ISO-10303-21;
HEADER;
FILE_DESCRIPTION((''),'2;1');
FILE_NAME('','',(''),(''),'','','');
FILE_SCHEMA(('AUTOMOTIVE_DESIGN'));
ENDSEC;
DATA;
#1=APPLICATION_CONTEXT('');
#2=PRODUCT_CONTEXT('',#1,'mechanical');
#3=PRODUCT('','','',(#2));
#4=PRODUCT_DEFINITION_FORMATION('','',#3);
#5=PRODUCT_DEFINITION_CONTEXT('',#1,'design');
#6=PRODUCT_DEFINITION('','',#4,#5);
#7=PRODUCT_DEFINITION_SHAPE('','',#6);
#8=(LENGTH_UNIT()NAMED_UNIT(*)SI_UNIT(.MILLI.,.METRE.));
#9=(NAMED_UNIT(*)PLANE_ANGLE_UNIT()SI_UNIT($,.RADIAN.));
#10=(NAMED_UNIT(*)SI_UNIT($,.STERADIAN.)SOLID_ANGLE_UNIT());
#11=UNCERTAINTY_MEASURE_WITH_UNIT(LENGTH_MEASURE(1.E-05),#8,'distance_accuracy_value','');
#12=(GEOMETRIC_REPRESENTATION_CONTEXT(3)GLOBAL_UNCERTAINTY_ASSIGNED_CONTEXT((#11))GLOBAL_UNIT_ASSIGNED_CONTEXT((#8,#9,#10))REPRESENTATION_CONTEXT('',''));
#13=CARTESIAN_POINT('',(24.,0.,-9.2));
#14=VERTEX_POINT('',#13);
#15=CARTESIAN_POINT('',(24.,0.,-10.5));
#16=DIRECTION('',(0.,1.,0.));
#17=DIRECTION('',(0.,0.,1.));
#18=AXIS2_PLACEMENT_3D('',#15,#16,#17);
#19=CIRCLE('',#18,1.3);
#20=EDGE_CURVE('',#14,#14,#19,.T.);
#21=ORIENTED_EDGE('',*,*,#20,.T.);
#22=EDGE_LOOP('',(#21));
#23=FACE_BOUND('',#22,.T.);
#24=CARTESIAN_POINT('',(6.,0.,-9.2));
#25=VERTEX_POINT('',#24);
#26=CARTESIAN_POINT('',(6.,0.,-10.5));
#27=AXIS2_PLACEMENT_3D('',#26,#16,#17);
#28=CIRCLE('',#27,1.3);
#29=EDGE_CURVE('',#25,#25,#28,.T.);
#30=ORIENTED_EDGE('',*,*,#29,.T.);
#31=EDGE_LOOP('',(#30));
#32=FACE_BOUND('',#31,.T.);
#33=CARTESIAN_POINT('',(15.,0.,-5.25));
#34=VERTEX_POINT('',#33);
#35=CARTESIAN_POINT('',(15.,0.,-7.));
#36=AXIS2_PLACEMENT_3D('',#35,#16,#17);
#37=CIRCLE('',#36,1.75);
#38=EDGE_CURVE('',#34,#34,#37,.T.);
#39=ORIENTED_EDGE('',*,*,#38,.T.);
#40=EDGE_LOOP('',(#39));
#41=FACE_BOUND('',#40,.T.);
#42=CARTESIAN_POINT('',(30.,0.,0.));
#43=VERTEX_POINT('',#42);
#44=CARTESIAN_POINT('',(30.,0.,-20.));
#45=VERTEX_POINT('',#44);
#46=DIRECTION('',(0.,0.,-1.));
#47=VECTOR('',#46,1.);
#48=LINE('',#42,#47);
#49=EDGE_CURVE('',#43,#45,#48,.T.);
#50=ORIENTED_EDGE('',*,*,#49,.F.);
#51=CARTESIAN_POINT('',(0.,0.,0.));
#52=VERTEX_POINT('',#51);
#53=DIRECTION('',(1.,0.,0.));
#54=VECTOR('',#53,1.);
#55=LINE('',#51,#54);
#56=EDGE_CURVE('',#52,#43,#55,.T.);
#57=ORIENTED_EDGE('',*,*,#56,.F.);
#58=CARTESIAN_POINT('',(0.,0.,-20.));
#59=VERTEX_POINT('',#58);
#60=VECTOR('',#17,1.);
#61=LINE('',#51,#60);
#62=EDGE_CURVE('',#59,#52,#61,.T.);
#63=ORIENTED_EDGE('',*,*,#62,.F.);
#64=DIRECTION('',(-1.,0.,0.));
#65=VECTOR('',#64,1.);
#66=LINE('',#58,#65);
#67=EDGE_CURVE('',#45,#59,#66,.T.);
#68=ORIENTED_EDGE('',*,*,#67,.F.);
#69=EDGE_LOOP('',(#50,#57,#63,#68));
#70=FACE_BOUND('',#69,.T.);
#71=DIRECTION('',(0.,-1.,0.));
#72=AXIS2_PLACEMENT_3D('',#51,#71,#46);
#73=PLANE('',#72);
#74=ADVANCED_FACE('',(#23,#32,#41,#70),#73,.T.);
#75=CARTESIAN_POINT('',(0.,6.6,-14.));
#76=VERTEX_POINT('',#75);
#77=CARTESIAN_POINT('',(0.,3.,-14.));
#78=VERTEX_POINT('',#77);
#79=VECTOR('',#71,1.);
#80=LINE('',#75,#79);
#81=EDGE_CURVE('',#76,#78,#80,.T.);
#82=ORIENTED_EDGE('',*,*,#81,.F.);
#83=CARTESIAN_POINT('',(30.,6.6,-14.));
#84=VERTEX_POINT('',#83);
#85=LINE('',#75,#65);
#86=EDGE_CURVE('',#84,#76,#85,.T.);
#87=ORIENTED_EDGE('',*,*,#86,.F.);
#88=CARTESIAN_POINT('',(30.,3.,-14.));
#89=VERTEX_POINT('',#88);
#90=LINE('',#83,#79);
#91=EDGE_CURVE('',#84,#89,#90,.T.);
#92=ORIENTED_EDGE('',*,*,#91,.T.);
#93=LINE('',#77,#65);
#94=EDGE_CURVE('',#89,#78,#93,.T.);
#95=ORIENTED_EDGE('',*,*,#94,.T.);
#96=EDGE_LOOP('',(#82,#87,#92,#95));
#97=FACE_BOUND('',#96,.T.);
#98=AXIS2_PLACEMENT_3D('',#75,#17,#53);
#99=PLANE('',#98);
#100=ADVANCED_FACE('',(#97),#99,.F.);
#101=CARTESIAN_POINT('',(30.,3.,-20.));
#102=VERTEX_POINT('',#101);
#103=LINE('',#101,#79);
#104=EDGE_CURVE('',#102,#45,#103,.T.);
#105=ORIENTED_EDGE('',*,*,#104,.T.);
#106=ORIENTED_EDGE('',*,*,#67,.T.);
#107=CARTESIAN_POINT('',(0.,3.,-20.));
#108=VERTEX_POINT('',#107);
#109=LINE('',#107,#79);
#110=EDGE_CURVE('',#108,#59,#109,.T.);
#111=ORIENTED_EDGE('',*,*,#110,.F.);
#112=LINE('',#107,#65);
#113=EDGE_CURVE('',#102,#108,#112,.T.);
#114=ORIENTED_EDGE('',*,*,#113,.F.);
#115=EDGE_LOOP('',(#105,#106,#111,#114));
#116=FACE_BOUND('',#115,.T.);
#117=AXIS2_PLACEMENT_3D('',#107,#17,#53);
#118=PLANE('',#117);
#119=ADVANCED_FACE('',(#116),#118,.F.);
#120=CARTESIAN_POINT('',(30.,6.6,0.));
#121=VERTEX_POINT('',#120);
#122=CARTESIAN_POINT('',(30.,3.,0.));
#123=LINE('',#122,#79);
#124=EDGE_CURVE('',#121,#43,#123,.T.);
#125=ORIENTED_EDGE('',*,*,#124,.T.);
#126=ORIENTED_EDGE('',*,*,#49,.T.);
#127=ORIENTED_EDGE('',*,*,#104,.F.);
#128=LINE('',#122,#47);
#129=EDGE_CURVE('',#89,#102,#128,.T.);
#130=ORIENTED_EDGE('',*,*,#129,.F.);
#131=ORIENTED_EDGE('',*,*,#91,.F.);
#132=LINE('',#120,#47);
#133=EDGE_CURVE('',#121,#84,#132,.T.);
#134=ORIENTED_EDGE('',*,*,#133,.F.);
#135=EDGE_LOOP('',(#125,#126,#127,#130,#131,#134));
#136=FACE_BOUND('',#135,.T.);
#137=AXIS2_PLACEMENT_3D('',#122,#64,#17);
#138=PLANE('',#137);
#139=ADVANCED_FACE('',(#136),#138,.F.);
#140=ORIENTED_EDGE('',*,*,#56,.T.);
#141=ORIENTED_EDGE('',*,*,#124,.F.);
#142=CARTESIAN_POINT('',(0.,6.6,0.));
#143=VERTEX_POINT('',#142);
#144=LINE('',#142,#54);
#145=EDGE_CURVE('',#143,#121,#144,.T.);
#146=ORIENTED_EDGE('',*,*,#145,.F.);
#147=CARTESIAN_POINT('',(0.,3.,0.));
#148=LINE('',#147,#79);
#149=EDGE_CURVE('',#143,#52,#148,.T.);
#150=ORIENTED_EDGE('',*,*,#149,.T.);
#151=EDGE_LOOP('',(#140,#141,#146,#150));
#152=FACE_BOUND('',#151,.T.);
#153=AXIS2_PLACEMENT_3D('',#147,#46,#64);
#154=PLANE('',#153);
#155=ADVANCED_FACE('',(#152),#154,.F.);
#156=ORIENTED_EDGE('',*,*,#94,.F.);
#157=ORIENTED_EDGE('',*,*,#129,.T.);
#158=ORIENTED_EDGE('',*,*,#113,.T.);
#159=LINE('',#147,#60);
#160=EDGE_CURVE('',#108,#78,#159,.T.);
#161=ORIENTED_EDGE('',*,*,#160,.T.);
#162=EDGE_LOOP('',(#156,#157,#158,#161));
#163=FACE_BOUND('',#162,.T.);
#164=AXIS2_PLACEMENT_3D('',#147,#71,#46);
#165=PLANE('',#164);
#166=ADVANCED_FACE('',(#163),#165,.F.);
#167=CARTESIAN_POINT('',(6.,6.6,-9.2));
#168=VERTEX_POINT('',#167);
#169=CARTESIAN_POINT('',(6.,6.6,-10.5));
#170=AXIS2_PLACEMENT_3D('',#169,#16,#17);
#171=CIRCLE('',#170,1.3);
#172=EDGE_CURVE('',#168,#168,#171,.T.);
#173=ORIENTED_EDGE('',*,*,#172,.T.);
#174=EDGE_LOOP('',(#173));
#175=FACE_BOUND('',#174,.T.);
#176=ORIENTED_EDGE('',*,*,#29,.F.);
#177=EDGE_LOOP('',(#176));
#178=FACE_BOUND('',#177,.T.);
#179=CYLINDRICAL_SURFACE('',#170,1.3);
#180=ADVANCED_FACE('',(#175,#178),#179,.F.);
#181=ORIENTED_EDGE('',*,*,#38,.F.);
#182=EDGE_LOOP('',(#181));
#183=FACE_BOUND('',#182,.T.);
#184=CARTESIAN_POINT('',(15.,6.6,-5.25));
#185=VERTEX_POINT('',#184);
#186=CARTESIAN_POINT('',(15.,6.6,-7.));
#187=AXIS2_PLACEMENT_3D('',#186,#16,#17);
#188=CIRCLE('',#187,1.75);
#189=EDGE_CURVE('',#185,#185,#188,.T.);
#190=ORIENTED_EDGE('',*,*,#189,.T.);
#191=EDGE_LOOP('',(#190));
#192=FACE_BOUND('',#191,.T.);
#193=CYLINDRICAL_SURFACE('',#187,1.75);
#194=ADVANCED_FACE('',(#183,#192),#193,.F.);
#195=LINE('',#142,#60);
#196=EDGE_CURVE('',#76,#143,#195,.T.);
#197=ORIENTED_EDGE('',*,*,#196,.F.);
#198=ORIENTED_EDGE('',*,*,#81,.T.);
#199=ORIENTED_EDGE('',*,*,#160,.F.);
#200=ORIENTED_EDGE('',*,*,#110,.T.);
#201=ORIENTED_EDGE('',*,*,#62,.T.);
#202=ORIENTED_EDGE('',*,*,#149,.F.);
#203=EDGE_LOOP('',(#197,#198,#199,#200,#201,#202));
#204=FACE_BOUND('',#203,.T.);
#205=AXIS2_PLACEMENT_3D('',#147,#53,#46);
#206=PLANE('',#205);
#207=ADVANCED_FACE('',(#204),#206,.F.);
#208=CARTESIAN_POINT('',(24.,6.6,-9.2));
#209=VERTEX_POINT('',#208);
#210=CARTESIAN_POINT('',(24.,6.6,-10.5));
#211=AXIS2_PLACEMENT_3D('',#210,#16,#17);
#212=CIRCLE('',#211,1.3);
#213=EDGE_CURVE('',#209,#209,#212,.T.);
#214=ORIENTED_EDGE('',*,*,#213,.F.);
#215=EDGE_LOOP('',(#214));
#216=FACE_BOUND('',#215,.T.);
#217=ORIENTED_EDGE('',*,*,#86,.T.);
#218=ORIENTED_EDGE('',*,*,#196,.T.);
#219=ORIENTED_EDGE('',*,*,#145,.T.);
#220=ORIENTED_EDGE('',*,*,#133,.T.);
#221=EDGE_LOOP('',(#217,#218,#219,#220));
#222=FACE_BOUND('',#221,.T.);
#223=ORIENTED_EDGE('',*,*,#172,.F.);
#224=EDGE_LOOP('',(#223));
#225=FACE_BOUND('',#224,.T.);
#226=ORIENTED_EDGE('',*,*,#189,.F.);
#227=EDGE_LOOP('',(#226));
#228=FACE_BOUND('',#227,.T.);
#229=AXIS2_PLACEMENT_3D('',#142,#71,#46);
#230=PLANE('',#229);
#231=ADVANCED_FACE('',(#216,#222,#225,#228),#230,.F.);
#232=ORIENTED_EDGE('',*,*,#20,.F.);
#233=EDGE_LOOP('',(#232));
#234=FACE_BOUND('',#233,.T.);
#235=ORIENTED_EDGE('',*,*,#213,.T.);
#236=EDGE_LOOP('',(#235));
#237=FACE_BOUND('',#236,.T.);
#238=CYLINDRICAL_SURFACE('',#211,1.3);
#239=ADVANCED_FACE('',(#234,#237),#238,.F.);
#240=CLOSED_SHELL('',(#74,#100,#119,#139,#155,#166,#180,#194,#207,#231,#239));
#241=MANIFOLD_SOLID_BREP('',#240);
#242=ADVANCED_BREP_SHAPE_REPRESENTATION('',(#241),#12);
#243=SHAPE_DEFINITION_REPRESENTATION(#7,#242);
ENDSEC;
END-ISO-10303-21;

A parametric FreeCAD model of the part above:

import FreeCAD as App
import Part
import Sketcher

doc = App.newDocument("Part")
params = doc.addObject("Spreadsheet::Sheet", "Params")
for row, (alias, value) in enumerate([
    ("sketch1_width", "30 mm"),
    ("sketch1_height", "20 mm"),
    ("pad1_length", "3 mm"),
    ("sketch2_width", "30 mm"),
    ("sketch2_height", "14 mm"),
    ("pad2_length", "3.6 mm"),
    ("sketch3_diameter", "2.6 mm"),
    ("hole_diameter", "2.6 mm"),
    ("sketch4_diameter", "3.5 mm"),
    ("hole2_diameter", "3.5 mm"),
], start=1):
    params.set(f"A{row}", alias)
    params.set(f"B{row}", "=" + value)
    params.setAlias(f"B{row}", alias)

body = doc.addObject("PartDesign::Body", "Body")

sketch1 = body.newObject("Sketcher::SketchObject", "Sketch")
sketch1.AttachmentSupport = (doc.getObject("XZ_Plane"), [""])
sketch1.MapMode = "FlatFace"
sketch1.addGeometry(Part.LineSegment(App.Vector(0, -20, 0), App.Vector(0, 0, 0)), False)
sketch1.addGeometry(Part.LineSegment(App.Vector(0, 0, 0), App.Vector(30, 0, 0)), False)
sketch1.addGeometry(Part.LineSegment(App.Vector(30, 0, 0), App.Vector(30, -20, 0)), False)
sketch1.addGeometry(Part.LineSegment(App.Vector(30, -20, 0), App.Vector(0, -20, 0)), False)
sketch1.addConstraint(Sketcher.Constraint("Coincident", 0, 2, 1, 1))
sketch1.addConstraint(Sketcher.Constraint("Coincident", 1, 2, 2, 1))
sketch1.addConstraint(Sketcher.Constraint("Coincident", 2, 2, 3, 1))
sketch1.addConstraint(Sketcher.Constraint("Coincident", 3, 2, 0, 1))
sketch1.addConstraint(Sketcher.Constraint("Vertical", 0))
sketch1.addConstraint(Sketcher.Constraint("Horizontal", 1))
sketch1.addConstraint(Sketcher.Constraint("Vertical", 2))
sketch1.addConstraint(Sketcher.Constraint("Horizontal", 3))
sketch1.addConstraint(Sketcher.Constraint("Coincident", 0, 2, -1, 1))
sketch1.addConstraint(Sketcher.Constraint("DistanceX", 1, 1, 1, 2, 30.0))
sketch1.addConstraint(Sketcher.Constraint("DistanceY", 0, 1, 0, 2, 20.0))
sketch1.setExpression("Constraints[9]", "Params.sketch1_width")
sketch1.setExpression("Constraints[10]", "Params.sketch1_height")
pad1 = body.newObject("PartDesign::Pad", "Pad")
pad1.Profile = sketch1
pad1.setExpression("Length", "Params.pad1_length")
pad1.Reversed = True

sketch2 = body.newObject("Sketcher::SketchObject", "Sketch001")
sketch2.AttachmentSupport = (doc.getObject("XZ_Plane"), [""])
sketch2.MapMode = "FlatFace"
sketch2.AttachmentOffset = App.Placement(App.Vector(0, 0, -3), App.Rotation())
sketch2.addGeometry(Part.LineSegment(App.Vector(0, -14, 0), App.Vector(0, 0, 0)), False)
sketch2.addGeometry(Part.LineSegment(App.Vector(0, 0, 0), App.Vector(30, 0, 0)), False)
sketch2.addGeometry(Part.LineSegment(App.Vector(30, 0, 0), App.Vector(30, -14, 0)), False)
sketch2.addGeometry(Part.LineSegment(App.Vector(30, -14, 0), App.Vector(0, -14, 0)), False)
sketch2.addConstraint(Sketcher.Constraint("Coincident", 0, 2, 1, 1))
sketch2.addConstraint(Sketcher.Constraint("Coincident", 1, 2, 2, 1))
sketch2.addConstraint(Sketcher.Constraint("Coincident", 2, 2, 3, 1))
sketch2.addConstraint(Sketcher.Constraint("Coincident", 3, 2, 0, 1))
sketch2.addConstraint(Sketcher.Constraint("Vertical", 0))
sketch2.addConstraint(Sketcher.Constraint("Horizontal", 1))
sketch2.addConstraint(Sketcher.Constraint("Vertical", 2))
sketch2.addConstraint(Sketcher.Constraint("Horizontal", 3))
sketch2.addConstraint(Sketcher.Constraint("Coincident", 0, 2, -1, 1))
sketch2.addConstraint(Sketcher.Constraint("DistanceX", 1, 1, 1, 2, 30.0))
sketch2.addConstraint(Sketcher.Constraint("DistanceY", 0, 1, 0, 2, 14.0))
sketch2.setExpression("Constraints[9]", "Params.sketch2_width")
sketch2.setExpression("Constraints[10]", "Params.sketch2_height")
pad2 = body.newObject("PartDesign::Pad", "Pad001")
pad2.Profile = sketch2
pad2.setExpression("Length", "Params.pad2_length")
pad2.Reversed = True

sketch3 = body.newObject("Sketcher::SketchObject", "Sketch002")
sketch3.AttachmentSupport = (doc.getObject("XZ_Plane"), [""])
sketch3.MapMode = "FlatFace"
sketch3.AttachmentOffset = App.Placement(App.Vector(0, 0, -6.6), App.Rotation())
sketch3.addGeometry(Part.Circle(App.Vector(6, -10.5, 0), App.Vector(0, 0, 1), 1.3), False)
sketch3.addGeometry(Part.Circle(App.Vector(15, -7, 0), App.Vector(0, 0, 1), 1.3), False)
sketch3.addGeometry(Part.Circle(App.Vector(24, -10.5, 0), App.Vector(0, 0, 1), 1.3), False)
sketch3.addConstraint(Sketcher.Constraint("Equal", 0, 1))
sketch3.addConstraint(Sketcher.Constraint("Equal", 1, 2))
sketch3.addConstraint(Sketcher.Constraint("Horizontal", 0, 3, 2, 3))
sketch3.addConstraint(Sketcher.Constraint("Diameter", 0, 2.6))
sketch3.addConstraint(Sketcher.Constraint("DistanceX", -1, 1, 0, 3, 6.0))
sketch3.addConstraint(Sketcher.Constraint("DistanceX", -1, 1, 1, 3, 15.0))
sketch3.addConstraint(Sketcher.Constraint("DistanceY", 1, 3, -1, 1, 7.0))
sketch3.addConstraint(Sketcher.Constraint("DistanceX", -1, 1, 2, 3, 24.0))
sketch3.addConstraint(Sketcher.Constraint("DistanceY", 0, 3, -1, 1, 10.5))
sketch3.setExpression("Constraints[3]", "Params.sketch3_diameter")
doc.recompute()
hole = body.newObject("PartDesign::Hole", "Hole")
hole.Profile = sketch3
hole.ThreadType = "None"
hole.setExpression("Diameter", "Params.hole_diameter")
hole.DepthType = "ThroughAll"
hole.Reversed = True

sketch4 = body.newObject("Sketcher::SketchObject", "Sketch003")
sketch4.AttachmentSupport = (doc.getObject("XZ_Plane"), [""])
sketch4.MapMode = "FlatFace"
sketch4.AttachmentOffset = App.Placement(App.Vector(0, 0, -6.6), App.Rotation())
sketch4.addGeometry(Part.Circle(App.Vector(15, -7, 0), App.Vector(0, 0, 1), 1.75), False)
sketch4.addConstraint(Sketcher.Constraint("Diameter", 0, 3.5))
sketch4.addConstraint(Sketcher.Constraint("DistanceX", -1, 1, 0, 3, 15.0))
sketch4.addConstraint(Sketcher.Constraint("DistanceY", 0, 3, -1, 1, 7.0))
sketch4.setExpression("Constraints[0]", "Params.sketch4_diameter")
doc.recompute()
hole2 = body.newObject("PartDesign::Hole", "Hole001")
hole2.Profile = sketch4
hole2.ThreadType = "None"
hole2.setExpression("Diameter", "Params.hole2_diameter")
hole2.DepthType = "ThroughAll"
hole2.Reversed = True

doc.recompute()
